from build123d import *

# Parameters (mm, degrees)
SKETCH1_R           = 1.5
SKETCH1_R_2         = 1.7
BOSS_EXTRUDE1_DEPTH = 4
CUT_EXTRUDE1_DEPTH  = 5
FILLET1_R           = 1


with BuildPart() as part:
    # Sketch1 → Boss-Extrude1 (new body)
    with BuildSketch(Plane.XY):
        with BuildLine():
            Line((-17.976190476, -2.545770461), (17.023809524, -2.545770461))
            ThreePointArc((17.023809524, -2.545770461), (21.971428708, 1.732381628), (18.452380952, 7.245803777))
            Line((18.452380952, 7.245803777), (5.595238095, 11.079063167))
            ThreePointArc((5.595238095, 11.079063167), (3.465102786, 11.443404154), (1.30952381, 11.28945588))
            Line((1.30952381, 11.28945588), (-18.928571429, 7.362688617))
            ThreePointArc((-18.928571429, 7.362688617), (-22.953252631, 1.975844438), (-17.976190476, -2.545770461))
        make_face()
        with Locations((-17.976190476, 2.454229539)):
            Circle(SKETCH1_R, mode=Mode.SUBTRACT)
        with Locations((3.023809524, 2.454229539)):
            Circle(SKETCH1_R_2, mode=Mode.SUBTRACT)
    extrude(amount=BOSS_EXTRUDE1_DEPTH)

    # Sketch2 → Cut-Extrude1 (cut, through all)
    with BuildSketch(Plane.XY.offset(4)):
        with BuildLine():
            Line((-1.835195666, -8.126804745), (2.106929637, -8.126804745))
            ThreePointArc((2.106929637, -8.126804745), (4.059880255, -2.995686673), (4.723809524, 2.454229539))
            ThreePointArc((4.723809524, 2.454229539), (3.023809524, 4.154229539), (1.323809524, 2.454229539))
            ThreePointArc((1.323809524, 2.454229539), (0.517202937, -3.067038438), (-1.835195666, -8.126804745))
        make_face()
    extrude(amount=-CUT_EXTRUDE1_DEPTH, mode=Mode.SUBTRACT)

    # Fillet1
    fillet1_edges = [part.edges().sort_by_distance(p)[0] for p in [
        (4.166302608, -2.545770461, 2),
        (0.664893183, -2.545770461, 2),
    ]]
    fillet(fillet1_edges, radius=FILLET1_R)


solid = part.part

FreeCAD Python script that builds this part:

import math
import FreeCAD as App
import Part
import Sketcher

V = App.Vector
Q = App.Units.Quantity


def edges_at(feature, points):
    """Names of the edges that pass closest to the given points."""
    edges = feature.Shape.Edges
    near = lambda p: min(range(len(edges)), key=lambda i: edges[i].distToShape(Part.Vertex(*p))[0])
    return sorted({f"Edge{near(p) + 1}" for p in points})

doc = App.newDocument("Part")
body = doc.addObject("PartDesign::Body", "Body")

sketch1 = body.newObject("Sketcher::SketchObject", "Sketch")
sketch1.AttachmentSupport = (doc.getObject("XY_Plane"), [""])
sketch1.MapMode = "FlatFace"
sketch1.addGeometry([
    Part.LineSegment(V(-18, -2.5, 0), V(17, -2.5, 0)),
    Part.ArcOfCircle(Part.Circle(V(17, 2.5, 0), V(0, 0, 1), 5), math.radians(-90), math.radians(73)),
    Part.LineSegment(V(18.5, 7.2, 0), V(5.6, 11.1, 0)),
    Part.ArcOfCircle(Part.Circle(V(3, 2.5, 0), V(0, 0, 1), 9), math.radians(73), math.radians(101)),
    Part.LineSegment(V(1.3, 11.3, 0), V(-18.9, 7.4, 0)),
    Part.ArcOfCircle(Part.Circle(V(-18, 2.5, 0), V(0, 0, 1), 5), math.radians(101), math.radians(270)),
    Part.Circle(V(-18, 2.5, 0), V(0, 0, 1), 1.5),
    Part.Circle(V(3, 2.5, 0), V(0, 0, 1), 1.7),
], False)
sketch1.addConstraint([
    Sketcher.Constraint("Tangent", 0, 2, 1, 1),
    Sketcher.Constraint("Tangent", 1, 2, 2, 1),
    Sketcher.Constraint("Tangent", 2, 2, 3, 1),
    Sketcher.Constraint("Tangent", 3, 2, 4, 1),
    Sketcher.Constraint("Tangent", 4, 2, 5, 1),
    Sketcher.Constraint("Tangent", 5, 2, 0, 1),
    Sketcher.Constraint("Horizontal", 0),
    Sketcher.Constraint("Coincident", 6, 3, 5, 3),
    Sketcher.Constraint("Coincident", 7, 3, 3, 3),
    Sketcher.Constraint("Equal", 1, 5),
    Sketcher.Constraint("Horizontal", 1, 3, 3, 3),
    Sketcher.Constraint("Diameter", 6, Q("3 mm")),
    Sketcher.Constraint("Radius", 1, Q("5 mm")),
    Sketcher.Constraint("Radius", 3, Q("9 mm")),
    Sketcher.Constraint("Diameter", 7, Q("3.4 mm")),
    Sketcher.Constraint("DistanceX", 0, 1, 0, 2, Q("35 mm")),
    Sketcher.Constraint("DistanceX", 3, 3, 1, 3, Q("14 mm")),
    Sketcher.Constraint("DistanceX", -1, 1, 1, 3, Q("17.02381 mm")),
    Sketcher.Constraint("DistanceY", -1, 1, 1, 3, Q("2.45423 mm")),
])
pad1 = body.newObject("PartDesign::Pad", "Pad")
pad1.Profile = sketch1
pad1.Length = 4

sketch2 = body.newObject("Sketcher::SketchObject", "Sketch001")
sketch2.AttachmentSupport = (doc.getObject("XY_Plane"), [""])
sketch2.MapMode = "FlatFace"
sketch2.AttachmentOffset = App.Placement(V(0, 0, 4), App.Rotation())
sketch2.addGeometry([
    Part.LineSegment(V(-1.8, -8.1, 0), V(2.1, -8.1, 0)),
    Part.ArcOfCircle(Part.Circle(V(-18, 2.5, 0), V(0, 0, 1), 22.7), math.radians(-28), math.radians(0)),
    Part.ArcOfCircle(Part.Circle(V(3, 2.5, 0), V(0, 0, 1), 1.7), math.radians(0), math.radians(180)),
    Part.ArcOfCircle(Part.Circle(V(-18, 2.5, 0), V(0, 0, 1), 19.3), math.radians(-33), math.radians(0)),
], False)
sketch2.addConstraint([
    Sketcher.Constraint("Coincident", 0, 2, 1, 1),
    Sketcher.Constraint("Tangent", 1, 2, 2, 1),
    Sketcher.Constraint("Tangent", 2, 2, 3, 2),
    Sketcher.Constraint("Coincident", 3, 1, 0, 1),
    Sketcher.Constraint("Horizontal", 0),
    Sketcher.Constraint("Coincident", 3, 3, 1, 3),
    Sketcher.Constraint("Horizontal", 1, 3, 2, 3),
    Sketcher.Constraint("Radius", 1, Q("22.7 mm")),
    Sketcher.Constraint("Radius", 2, Q("1.7 mm")),
    Sketcher.Constraint("DistanceX", 0, 1, 0, 2, Q("3.942125 mm")),
    Sketcher.Constraint("DistanceX", 1, 3, -1, 1, Q("17.97619 mm")),
    Sketcher.Constraint("DistanceY", -1, 1, 1, 3, Q("2.45423 mm")),
])
pocket1 = body.newObject("PartDesign::Pocket", "Pocket")
pocket1.Profile = sketch2
pocket1.Type = "ThroughAll"
doc.recompute()

fillet = body.newObject("PartDesign::Fillet", "Fillet")
fillet.Base = (pocket1, edges_at(pocket1, [(4.166, -2.546, 2), (0.665, -2.546, 2)]))
fillet.Radius = 1

doc.recompute()
